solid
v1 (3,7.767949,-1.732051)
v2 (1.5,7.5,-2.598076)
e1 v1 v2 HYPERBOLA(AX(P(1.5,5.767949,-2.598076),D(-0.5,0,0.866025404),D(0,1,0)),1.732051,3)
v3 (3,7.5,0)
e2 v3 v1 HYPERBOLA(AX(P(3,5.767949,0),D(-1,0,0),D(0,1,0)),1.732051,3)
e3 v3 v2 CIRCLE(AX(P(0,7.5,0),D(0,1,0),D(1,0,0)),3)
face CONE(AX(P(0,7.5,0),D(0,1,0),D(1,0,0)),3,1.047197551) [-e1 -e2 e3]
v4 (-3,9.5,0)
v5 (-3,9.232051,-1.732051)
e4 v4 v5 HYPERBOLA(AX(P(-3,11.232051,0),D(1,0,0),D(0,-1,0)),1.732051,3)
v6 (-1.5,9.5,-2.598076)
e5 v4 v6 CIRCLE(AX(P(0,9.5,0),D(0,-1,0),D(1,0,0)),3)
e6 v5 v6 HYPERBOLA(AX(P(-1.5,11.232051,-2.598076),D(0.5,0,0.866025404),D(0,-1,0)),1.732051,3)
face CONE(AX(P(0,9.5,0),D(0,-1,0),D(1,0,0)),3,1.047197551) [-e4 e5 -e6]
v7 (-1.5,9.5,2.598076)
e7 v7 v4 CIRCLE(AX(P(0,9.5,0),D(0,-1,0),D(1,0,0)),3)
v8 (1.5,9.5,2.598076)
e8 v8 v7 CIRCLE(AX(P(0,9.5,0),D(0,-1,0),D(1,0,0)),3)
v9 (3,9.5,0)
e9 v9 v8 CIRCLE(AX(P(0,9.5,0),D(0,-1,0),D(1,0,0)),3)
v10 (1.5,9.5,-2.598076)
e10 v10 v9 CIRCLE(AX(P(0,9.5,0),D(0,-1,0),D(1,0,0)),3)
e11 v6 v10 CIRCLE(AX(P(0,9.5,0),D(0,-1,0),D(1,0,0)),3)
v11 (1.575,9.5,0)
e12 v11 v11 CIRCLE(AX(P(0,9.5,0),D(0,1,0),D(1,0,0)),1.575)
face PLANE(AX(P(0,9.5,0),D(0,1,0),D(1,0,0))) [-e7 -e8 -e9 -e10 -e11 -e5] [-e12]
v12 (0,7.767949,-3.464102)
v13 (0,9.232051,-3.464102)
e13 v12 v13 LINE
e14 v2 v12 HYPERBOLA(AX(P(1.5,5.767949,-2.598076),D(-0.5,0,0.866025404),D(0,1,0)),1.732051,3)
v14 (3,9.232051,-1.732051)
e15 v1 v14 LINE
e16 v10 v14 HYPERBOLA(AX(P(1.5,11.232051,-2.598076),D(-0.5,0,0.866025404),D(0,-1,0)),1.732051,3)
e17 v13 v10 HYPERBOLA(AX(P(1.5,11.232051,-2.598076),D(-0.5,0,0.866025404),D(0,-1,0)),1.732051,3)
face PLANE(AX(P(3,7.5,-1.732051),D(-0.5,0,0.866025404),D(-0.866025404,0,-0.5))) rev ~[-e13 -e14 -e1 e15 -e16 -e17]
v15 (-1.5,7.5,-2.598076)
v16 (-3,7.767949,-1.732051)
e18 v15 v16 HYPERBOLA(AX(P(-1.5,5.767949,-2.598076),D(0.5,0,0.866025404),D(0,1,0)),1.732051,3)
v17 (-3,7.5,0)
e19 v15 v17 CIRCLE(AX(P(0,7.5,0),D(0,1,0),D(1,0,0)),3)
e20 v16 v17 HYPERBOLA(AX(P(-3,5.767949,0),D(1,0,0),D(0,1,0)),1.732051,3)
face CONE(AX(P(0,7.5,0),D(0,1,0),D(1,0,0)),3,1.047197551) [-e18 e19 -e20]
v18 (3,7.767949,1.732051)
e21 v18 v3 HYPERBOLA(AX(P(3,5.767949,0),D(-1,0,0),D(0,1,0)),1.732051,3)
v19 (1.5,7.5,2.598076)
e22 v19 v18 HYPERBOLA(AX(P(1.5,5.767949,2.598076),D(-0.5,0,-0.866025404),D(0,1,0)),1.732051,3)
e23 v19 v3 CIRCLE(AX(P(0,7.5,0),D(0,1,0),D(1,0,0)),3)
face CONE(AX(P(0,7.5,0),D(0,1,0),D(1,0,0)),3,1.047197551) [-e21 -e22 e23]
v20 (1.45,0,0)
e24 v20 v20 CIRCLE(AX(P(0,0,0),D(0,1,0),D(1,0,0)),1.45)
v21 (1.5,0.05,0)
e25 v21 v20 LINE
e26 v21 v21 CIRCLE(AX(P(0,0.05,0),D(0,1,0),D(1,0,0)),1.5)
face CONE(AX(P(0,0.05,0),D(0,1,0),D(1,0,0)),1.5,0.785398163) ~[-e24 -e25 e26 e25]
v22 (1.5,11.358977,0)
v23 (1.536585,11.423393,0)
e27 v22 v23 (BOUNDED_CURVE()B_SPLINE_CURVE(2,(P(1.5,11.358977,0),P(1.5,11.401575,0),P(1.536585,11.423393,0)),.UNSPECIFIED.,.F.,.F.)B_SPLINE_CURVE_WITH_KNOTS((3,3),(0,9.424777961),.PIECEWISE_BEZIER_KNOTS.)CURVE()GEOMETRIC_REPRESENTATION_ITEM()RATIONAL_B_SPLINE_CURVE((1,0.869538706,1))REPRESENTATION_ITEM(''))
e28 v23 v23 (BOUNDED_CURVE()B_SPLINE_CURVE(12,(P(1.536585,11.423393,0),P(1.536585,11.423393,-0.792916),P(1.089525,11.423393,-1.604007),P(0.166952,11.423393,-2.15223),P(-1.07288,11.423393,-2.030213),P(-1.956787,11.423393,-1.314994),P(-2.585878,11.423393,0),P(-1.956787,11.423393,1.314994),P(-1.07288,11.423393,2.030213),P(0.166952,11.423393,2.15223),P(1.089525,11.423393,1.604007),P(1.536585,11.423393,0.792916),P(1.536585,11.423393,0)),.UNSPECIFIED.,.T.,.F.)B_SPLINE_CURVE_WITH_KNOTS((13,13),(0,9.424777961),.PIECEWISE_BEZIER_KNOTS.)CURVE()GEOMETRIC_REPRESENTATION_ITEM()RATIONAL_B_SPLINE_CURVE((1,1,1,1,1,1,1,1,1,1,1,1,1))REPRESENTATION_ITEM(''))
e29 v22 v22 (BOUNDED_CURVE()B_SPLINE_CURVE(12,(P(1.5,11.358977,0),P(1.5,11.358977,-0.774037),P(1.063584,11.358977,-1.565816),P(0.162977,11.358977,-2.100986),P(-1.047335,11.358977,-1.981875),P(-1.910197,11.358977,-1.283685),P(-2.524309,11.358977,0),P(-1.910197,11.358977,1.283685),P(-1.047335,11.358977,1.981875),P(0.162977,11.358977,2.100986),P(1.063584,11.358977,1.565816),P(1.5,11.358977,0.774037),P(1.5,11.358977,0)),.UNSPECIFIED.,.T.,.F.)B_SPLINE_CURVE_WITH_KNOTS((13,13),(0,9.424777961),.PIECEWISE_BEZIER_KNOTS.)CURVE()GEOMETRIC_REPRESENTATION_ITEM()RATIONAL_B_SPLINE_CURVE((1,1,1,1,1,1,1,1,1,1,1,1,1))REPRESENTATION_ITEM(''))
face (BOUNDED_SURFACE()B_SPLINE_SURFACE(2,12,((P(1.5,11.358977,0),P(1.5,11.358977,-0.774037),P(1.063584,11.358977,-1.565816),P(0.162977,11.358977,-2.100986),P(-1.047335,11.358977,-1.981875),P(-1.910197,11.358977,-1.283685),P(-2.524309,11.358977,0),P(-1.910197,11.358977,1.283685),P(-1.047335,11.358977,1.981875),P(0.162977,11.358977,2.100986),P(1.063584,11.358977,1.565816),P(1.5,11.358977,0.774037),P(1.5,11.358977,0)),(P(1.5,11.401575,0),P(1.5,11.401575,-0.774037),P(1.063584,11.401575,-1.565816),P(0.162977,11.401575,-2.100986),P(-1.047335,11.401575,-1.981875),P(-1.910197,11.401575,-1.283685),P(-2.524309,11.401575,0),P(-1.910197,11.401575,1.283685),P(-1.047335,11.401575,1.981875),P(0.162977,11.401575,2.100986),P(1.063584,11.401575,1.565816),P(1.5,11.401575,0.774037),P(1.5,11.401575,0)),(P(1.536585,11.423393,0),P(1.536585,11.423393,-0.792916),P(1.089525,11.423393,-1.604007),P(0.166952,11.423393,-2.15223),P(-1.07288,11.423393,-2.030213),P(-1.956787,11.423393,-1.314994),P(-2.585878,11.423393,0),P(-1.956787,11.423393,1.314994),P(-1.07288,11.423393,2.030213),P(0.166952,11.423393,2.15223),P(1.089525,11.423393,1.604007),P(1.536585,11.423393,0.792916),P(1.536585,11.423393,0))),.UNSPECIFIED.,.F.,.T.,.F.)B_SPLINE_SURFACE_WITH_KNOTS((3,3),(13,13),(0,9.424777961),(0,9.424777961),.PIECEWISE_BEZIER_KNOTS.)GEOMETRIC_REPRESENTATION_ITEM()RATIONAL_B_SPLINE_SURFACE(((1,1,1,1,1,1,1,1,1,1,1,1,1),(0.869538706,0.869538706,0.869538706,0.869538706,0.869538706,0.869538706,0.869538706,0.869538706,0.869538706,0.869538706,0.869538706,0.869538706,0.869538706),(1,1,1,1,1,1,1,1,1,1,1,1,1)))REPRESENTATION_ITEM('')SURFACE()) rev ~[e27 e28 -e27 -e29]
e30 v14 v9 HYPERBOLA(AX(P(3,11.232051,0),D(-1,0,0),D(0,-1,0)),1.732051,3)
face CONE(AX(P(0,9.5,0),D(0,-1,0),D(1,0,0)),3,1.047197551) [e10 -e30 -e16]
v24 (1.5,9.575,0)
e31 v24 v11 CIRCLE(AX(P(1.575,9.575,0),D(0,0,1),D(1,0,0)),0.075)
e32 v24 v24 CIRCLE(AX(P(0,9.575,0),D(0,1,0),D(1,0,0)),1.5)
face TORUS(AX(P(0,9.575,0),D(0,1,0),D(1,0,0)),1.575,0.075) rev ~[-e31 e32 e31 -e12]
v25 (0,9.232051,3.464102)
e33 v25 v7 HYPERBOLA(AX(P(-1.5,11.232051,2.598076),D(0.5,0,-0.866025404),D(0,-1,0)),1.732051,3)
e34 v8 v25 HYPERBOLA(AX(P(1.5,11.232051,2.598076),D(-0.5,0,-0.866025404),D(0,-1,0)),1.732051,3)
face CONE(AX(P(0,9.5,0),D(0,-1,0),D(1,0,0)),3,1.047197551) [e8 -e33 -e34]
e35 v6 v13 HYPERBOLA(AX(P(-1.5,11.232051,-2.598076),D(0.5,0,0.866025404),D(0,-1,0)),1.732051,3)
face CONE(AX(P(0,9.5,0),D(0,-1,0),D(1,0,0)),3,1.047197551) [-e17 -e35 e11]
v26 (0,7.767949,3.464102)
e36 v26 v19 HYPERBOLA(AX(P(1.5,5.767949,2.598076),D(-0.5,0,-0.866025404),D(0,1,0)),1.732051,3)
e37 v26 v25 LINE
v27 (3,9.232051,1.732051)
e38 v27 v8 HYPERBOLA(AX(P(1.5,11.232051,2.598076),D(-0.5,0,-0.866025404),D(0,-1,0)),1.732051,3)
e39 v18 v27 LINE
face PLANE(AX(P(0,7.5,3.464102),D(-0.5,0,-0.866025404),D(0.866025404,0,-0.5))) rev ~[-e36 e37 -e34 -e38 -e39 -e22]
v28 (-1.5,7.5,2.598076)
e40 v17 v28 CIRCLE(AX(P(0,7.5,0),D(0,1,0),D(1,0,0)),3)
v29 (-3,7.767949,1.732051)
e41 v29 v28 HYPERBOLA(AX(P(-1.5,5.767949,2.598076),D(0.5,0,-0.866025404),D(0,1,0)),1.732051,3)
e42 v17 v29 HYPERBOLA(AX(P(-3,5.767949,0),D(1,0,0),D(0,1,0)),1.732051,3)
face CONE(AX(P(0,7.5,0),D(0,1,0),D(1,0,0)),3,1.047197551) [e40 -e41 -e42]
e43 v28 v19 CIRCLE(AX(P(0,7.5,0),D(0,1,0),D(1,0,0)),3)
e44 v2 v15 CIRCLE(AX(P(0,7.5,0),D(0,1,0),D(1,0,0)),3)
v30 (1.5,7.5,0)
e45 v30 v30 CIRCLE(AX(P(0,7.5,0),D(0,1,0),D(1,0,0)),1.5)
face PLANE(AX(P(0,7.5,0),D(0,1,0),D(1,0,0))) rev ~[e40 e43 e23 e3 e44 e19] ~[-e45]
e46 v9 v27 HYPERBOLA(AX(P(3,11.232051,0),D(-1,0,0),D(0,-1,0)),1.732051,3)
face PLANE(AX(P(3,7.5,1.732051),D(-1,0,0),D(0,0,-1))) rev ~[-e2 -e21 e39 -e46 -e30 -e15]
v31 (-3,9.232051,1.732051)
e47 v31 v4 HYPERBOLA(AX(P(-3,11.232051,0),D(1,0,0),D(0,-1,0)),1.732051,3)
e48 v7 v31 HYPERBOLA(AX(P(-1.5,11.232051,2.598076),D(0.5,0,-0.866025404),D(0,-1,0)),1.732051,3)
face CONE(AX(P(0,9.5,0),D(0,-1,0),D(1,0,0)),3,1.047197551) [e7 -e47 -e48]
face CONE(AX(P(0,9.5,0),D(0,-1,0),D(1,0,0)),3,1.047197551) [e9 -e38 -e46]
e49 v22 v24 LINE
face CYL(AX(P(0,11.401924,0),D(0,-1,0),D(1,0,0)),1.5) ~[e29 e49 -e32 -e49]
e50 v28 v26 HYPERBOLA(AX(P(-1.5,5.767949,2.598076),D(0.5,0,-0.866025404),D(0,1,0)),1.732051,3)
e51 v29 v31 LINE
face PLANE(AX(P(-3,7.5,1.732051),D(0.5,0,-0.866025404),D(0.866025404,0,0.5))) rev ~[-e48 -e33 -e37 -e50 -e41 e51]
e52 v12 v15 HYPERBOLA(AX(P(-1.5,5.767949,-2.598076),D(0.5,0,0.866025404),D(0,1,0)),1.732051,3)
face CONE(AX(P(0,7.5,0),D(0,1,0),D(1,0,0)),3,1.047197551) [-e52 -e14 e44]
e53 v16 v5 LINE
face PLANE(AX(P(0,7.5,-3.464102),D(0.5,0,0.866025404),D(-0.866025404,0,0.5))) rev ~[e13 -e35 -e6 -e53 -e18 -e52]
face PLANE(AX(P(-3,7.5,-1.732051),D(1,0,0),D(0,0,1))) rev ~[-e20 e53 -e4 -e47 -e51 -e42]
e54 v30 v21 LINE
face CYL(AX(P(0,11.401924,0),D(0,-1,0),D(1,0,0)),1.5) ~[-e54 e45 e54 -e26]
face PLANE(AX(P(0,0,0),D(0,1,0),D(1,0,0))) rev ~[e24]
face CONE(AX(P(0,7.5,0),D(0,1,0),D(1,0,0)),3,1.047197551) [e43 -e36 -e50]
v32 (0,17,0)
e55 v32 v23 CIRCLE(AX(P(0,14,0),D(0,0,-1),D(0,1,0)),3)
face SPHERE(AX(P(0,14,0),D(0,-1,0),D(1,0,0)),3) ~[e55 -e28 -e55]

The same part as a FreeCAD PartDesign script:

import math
import FreeCAD as App
import Part
import Sketcher

V = App.Vector
Q = App.Units.Quantity


def edges_at(feature, points):
    """Names of the edges that pass closest to the given points."""
    edges = feature.Shape.Edges
    near = lambda p: min(range(len(edges)), key=lambda i: edges[i].distToShape(Part.Vertex(*p))[0])
    return sorted({f"Edge{near(p) + 1}" for p in points})


def add_polygon(sketch, points):
    """Adds a closed chain of lines whose ends are joined by coincident constraints."""
    first, n = sketch.GeometryCount, len(points)
    for a, b in zip(points, points[1:] + points[:1]):
        sketch.addGeometry(Part.LineSegment(App.Vector(*a, 0), App.Vector(*b, 0)), False)
    for i in range(n):
        sketch.addConstraint(Sketcher.Constraint("Coincident", first + i, 2, first + (i + 1) % n, 1))

doc = App.newDocument("Part")
body = doc.addObject("PartDesign::Body", "Body")

sketch1 = doc.addObject("Sketcher::SketchObject", "Sketch")
body.addObject(sketch1)
sketch1.AttachmentSupport = (doc.XY_Plane, [""])
sketch1.MapMode = "FlatFace"
sketch1.addGeometry(Part.LineSegment(V(0, 17, 0), V(0, 0, 0)), False)
sketch1.addGeometry(Part.LineSegment(V(0, 0, 0), V(1.5, 0, 0)), False)
sketch1.addGeometry(Part.LineSegment(V(1.5, 0, 0), V(1.5, 11.4, 0)), False)
sketch1.addGeometry(Part.ArcOfCircle(Part.Circle(V(0, 14, 0), V(0, 0, 1), 3), math.radians(-60), math.radians(90)), False)
sketch1.addConstraint(Sketcher.Constraint("Coincident", 0, 2, 1, 1))
sketch1.addConstraint(Sketcher.Constraint("Coincident", 1, 2, 2, 1))
sketch1.addConstraint(Sketcher.Constraint("Coincident", 2, 2, 3, 1))
sketch1.addConstraint(Sketcher.Constraint("Coincident", 3, 2, 0, 1))
sketch1.addConstraint(Sketcher.Constraint("Vertical", 0))
sketch1.addConstraint(Sketcher.Constraint("Horizontal", 1))
sketch1.addConstraint(Sketcher.Constraint("Vertical", 2))
sketch1.addConstraint(Sketcher.Constraint("Coincident", 0, 2, -1, 1))
sketch1.addConstraint(Sketcher.Constraint("PointOnObject", 3, 3, -2))
sketch1.addConstraint(Sketcher.Constraint("Radius", 3, Q("3 mm")))
sketch1.addConstraint(Sketcher.Constraint("DistanceY", 0, 2, 0, 1, Q("17 mm")))
sketch1.addConstraint(Sketcher.Constraint("DistanceX", 1, 1, 1, 2, Q("1.5 mm")))
revolution = doc.addObject("PartDesign::Revolution", "Revolution")
body.addObject(revolution)
revolution.Profile = sketch1
revolution.ReferenceAxis = (sketch1, ["V_Axis"])
revolution.Angle = 360
doc.recompute()

chamfer = doc.addObject("PartDesign::Chamfer", "Chamfer")
body.addObject(chamfer)
chamfer.Base = (revolution, edges_at(revolution, [(-1.5, 0, 0)]))
chamfer.Size = 0.05

sketch2 = doc.addObject("Sketcher::SketchObject", "Sketch001")
body.addObject(sketch2)
sketch2.AttachmentSupport = (doc.XZ_Plane, [""])
sketch2.MapMode = "FlatFace"
sketch2.AttachmentOffset = App.Placement(V(0, 0, -7.5), App.Rotation())
add_polygon(sketch2, [(0, 3.5), (3, 1.7), (3, -1.7), (0, -3.5), (-3, -1.7), (-3, 1.7)])
sketch2.addGeometry(Part.Circle(V(0, 0, 0), V(0, 0, 1), 1.5), False)
sketch2.addConstraint(Sketcher.Constraint("Vertical", 1))
sketch2.addConstraint(Sketcher.Constraint("Vertical", 4))
sketch2.addConstraint(Sketcher.Constraint("Coincident", 6, 3, -1, 1))
sketch2.addConstraint(Sketcher.Constraint("Symmetric", 0, 2, 3, 2, -1, 1))
sketch2.addConstraint(Sketcher.Constraint("Symmetric", 2, 2, 5, 2, -1, 1))
sketch2.addConstraint(Sketcher.Constraint("PointOnObject", 2, 2, -2))
sketch2.addConstraint(Sketcher.Constraint("Parallel", 2, 5))
sketch2.addConstraint(Sketcher.Constraint("Horizontal", 1, 2, 3, 2))
sketch2.addConstraint(Sketcher.Constraint("Diameter", 6, Q("3 mm")))
sketch2.addConstraint(Sketcher.Constraint("Angle", 0, Q("-30 deg")))
sketch2.addConstraint(Sketcher.Constraint("DistanceX", -1, 1, 0, 2, Q("3 mm")))
sketch2.addConstraint(Sketcher.Constraint("DistanceY", 1, 2, 1, 1, Q("3.464102 mm")))
pad1 = doc.addObject("PartDesign::Pad", "Pad")
body.addObject(pad1)
pad1.Profile = sketch2
pad1.Length = 2
pad1.Reversed = True

sketch3 = doc.addObject("Sketcher::SketchObject", "Sketch002")
body.addObject(sketch3)
sketch3.AttachmentSupport = (doc.XZ_Plane, [""])
sketch3.MapMode = "FlatFace"
sketch3.AttachmentOffset = App.Placement(V(0, 0, -7.5), App.Rotation())
add_polygon(sketch3, [(-9.4, 9.9), (-9.4, -9.9), (9.4, -9.9), (9.4, 9.9)])
sketch3.addGeometry(Part.Circle(V(0, 0, 0), V(0, 0, 1), 3), False)
sketch3.addConstraint(Sketcher.Constraint("Vertical", 0))
sketch3.addConstraint(Sketcher.Constraint("Horizontal", 1))
sketch3.addConstraint(Sketcher.Constraint("Vertical", 2))
sketch3.addConstraint(Sketcher.Constraint("Horizontal", 3))
sketch3.addConstraint(Sketcher.Constraint("Coincident", 4, 3, -1, 1))
sketch3.addConstraint(Sketcher.Constraint("Symmetric", 0, 2, 2, 2, -1, 1))
sketch3.addConstraint(Sketcher.Constraint("Diameter", 4, Q("6 mm")))
sketch3.addConstraint(Sketcher.Constraint("DistanceX", 1, 1, 1, 2, Q("18.79 mm")))
sketch3.addConstraint(Sketcher.Constraint("DistanceY", 0, 2, 0, 1, Q("19.718 mm")))
pocket1 = doc.addObject("PartDesign::Pocket", "Pocket")
body.addObject(pocket1)
pocket1.Profile = sketch3
pocket1.Length = 2
pocket1.TaperAngle = 60

sketch4 = doc.addObject("Sketcher::SketchObject", "Sketch003")
body.addObject(sketch4)
sketch4.AttachmentSupport = (doc.XZ_Plane, [""])
sketch4.MapMode = "FlatFace"
sketch4.AttachmentOffset = App.Placement(V(0, 0, -9.5), App.Rotation())
add_polygon(sketch4, [(-9.4, -9.9), (-9.4, 9.9), (9.4, 9.9), (9.4, -9.9)])
sketch4.addGeometry(Part.Circle(V(0, 0, 0), V(0, 0, 1), 3), False)
sketch4.addConstraint(Sketcher.Constraint("Vertical", 0))
sketch4.addConstraint(Sketcher.Constraint("Horizontal", 1))
sketch4.addConstraint(Sketcher.Constraint("Vertical", 2))
sketch4.addConstraint(Sketcher.Constraint("Horizontal", 3))
sketch4.addConstraint(Sketcher.Constraint("Coincident", 4, 3, -1, 1))
sketch4.addConstraint(Sketcher.Constraint("Symmetric", 0, 2, 2, 2, -1, 1))
sketch4.addConstraint(Sketcher.Constraint("Diameter", 4, Q("6 mm")))
sketch4.addConstraint(Sketcher.Constraint("DistanceX", 1, 1, 1, 2, Q("18.79 mm")))
sketch4.addConstraint(Sketcher.Constraint("DistanceY", 0, 1, 0, 2, Q("19.718 mm")))
pocket2 = doc.addObject("PartDesign::Pocket", "Pocket001")
body.addObject(pocket2)
pocket2.Profile = sketch4
pocket2.Length = 2
pocket2.Reversed = True
pocket2.TaperAngle = 60
doc.recompute()

fillet = doc.addObject("PartDesign::Fillet", "Fillet")
body.addObject(fillet)
fillet.Base = (pocket2, edges_at(pocket2, [(-1.5, 9.5, 0), (-1.5, 11.402, 0)]))
fillet.Radius = 0.075

doc.recompute()
